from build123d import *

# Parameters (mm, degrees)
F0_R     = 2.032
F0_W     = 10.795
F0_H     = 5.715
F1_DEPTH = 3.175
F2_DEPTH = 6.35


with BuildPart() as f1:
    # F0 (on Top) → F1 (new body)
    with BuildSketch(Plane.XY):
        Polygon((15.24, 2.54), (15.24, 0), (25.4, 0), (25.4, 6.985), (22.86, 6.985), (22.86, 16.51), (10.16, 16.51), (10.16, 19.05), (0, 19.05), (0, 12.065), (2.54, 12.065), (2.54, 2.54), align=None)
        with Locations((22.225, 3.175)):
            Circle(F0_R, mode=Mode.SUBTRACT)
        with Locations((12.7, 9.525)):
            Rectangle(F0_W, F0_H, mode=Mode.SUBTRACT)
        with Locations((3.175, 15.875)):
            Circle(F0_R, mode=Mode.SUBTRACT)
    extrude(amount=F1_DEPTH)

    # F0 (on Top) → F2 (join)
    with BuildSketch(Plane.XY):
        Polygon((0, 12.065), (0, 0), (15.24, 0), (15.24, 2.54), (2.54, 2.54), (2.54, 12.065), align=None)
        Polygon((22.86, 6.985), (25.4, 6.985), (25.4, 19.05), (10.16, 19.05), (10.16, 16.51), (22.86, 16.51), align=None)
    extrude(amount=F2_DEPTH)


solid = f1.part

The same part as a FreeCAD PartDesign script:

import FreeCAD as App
import Part
import Sketcher
Q = App.Units.Quantity


def add_polygon(sketch, points):
    """Adds a closed chain of lines whose ends are joined by coincident constraints."""
    first, n = sketch.GeometryCount, len(points)
    for a, b in zip(points, points[1:] + points[:1]):
        sketch.addGeometry(Part.LineSegment(App.Vector(*a, 0), App.Vector(*b, 0)), False)
    for i in range(n):
        sketch.addConstraint(Sketcher.Constraint("Coincident", first + i, 2, first + (i + 1) % n, 1))

doc = App.newDocument("Part")
body = doc.addObject("PartDesign::Body", "Body")

sketch1 = body.newObject("Sketcher::SketchObject", "Sketch")
sketch1.AttachmentSupport = (doc.getObject("XY_Plane"), [""])
sketch1.MapMode = "FlatFace"
add_polygon(sketch1, [(15.2, 2.5), (15.2, 0), (25.4, 0), (25.4, 7), (22.9, 7), (22.9, 16.5), (10.2, 16.5), (10.2, 19.1), (0, 19.1), (0, 12.1), (2.5, 12.1), (2.5, 2.5)])
sketch1.addGeometry(Part.Circle(App.Vector(22.2, 3.2, 0), App.Vector(0, 0, 1), 2), False)
add_polygon(sketch1, [(18.1, 6.7), (7.3, 6.7), (7.3, 12.4), (18.1, 12.4)])
sketch1.addGeometry(Part.Circle(App.Vector(3.2, 15.9, 0), App.Vector(0, 0, 1), 2), False)
sketch1.addConstraint([
    Sketcher.Constraint("Vertical", 0),
    Sketcher.Constraint("Horizontal", 1),
    Sketcher.Constraint("Vertical", 2),
    Sketcher.Constraint("Horizontal", 3),
    Sketcher.Constraint("Vertical", 4),
    Sketcher.Constraint("Horizontal", 5),
    Sketcher.Constraint("Vertical", 6),
    Sketcher.Constraint("Horizontal", 7),
    Sketcher.Constraint("Vertical", 8),
    Sketcher.Constraint("Horizontal", 9),
    Sketcher.Constraint("Vertical", 10),
    Sketcher.Constraint("Horizontal", 11),
    Sketcher.Constraint("Horizontal", 13),
    Sketcher.Constraint("Vertical", 14),
    Sketcher.Constraint("Horizontal", 15),
    Sketcher.Constraint("Vertical", 16),
    Sketcher.Constraint("Equal", 12, 17),
    Sketcher.Constraint("PointOnObject", 0, 2, -1),
    Sketcher.Constraint("PointOnObject", 7, 2, -2),
    Sketcher.Constraint("Equal", 1, 7),
    Sketcher.Constraint("Equal", 3, 9),
    Sketcher.Constraint("Equal", 9, 0),
    Sketcher.Constraint("Equal", 0, 6),
    Sketcher.Constraint("Equal", 2, 8),
    Sketcher.Constraint("Diameter", 12, Q("0.16 in")),
    Sketcher.Constraint("DistanceX", 1, 1, 1, 2, Q("0.4 in")),
    Sketcher.Constraint("DistanceX", 3, 2, 3, 1, Q("0.1 in")),
    Sketcher.Constraint("DistanceX", 5, 2, 5, 1, Q("0.5 in")),
    Sketcher.Constraint("DistanceY", 12, 3, 17, 3, Q("0.5 in")),
    Sketcher.Constraint("DistanceX", 13, 2, 13, 1, Q("0.425 in")),
    Sketcher.Constraint("DistanceY", 2, 1, 2, 2, Q("0.275 in")),
    Sketcher.Constraint("DistanceY", 4, 1, 4, 2, Q("0.375 in")),
    Sketcher.Constraint("DistanceY", 14, 1, 14, 2, Q("0.225 in")),
    Sketcher.Constraint("DistanceX", 17, 3, 12, 3, Q("0.75 in")),
    Sketcher.Constraint("DistanceY", 12, 3, 2, 2, Q("0.15 in")),
    Sketcher.Constraint("DistanceX", -1, 1, 12, 3, Q("0.875 in")),
    Sketcher.Constraint("DistanceX", 10, 2, 13, 2, Q("0.1875 in")),
    Sketcher.Constraint("DistanceY", -1, 1, 13, 2, Q("0.2625 in")),
])
pad1 = body.newObject("PartDesign::Pad", "Pad")
pad1.Profile = sketch1
pad1.Length = Q("0.125 in")

sketch2 = body.newObject("Sketcher::SketchObject", "Sketch001")
sketch2.AttachmentSupport = (doc.getObject("XY_Plane"), [""])
sketch2.MapMode = "FlatFace"
add_polygon(sketch2, [(0, 12.1), (0, 0), (15.2, 0), (15.2, 2.5), (2.5, 2.5), (2.5, 12.1)])
add_polygon(sketch2, [(22.9, 7), (25.4, 7), (25.4, 19.1), (10.2, 19.1), (10.2, 16.5), (22.9, 16.5)])
sketch2.addConstraint([
    Sketcher.Constraint("Vertical", 0),
    Sketcher.Constraint("Horizontal", 1),
    Sketcher.Constraint("Vertical", 2),
    Sketcher.Constraint("Horizontal", 3),
    Sketcher.Constraint("Vertical", 4),
    Sketcher.Constraint("Horizontal", 5),
    Sketcher.Constraint("Horizontal", 6),
    Sketcher.Constraint("Vertical", 7),
    Sketcher.Constraint("Horizontal", 8),
    Sketcher.Constraint("Vertical", 9),
    Sketcher.Constraint("Horizontal", 10),
    Sketcher.Constraint("Vertical", 11),
    Sketcher.Constraint("Coincident", 0, 2, -1, 1),
    Sketcher.Constraint("Equal", 5, 6),
    Sketcher.Constraint("Equal", 1, 8),
    Sketcher.Constraint("Equal", 6, 2),
    Sketcher.Constraint("Equal", 0, 7),
    Sketcher.Constraint("Equal", 2, 9),
    Sketcher.Constraint("DistanceX", 1, 1, 1, 2, Q("0.6 in")),
    Sketcher.Constraint("DistanceX", 3, 2, 3, 1, Q("0.5 in")),
    Sketcher.Constraint("DistanceX", -1, 1, 6, 2, Q("1 in")),
    Sketcher.Constraint("DistanceY", 6, 2, 4, 2, Q("0.2 in")),
    Sketcher.Constraint("DistanceY", 0, 2, 0, 1, Q("0.475 in")),
])
pad2 = body.newObject("PartDesign::Pad", "Pad001")
pad2.Profile = sketch2
pad2.Length = Q("0.25 in")

doc.recompute()
